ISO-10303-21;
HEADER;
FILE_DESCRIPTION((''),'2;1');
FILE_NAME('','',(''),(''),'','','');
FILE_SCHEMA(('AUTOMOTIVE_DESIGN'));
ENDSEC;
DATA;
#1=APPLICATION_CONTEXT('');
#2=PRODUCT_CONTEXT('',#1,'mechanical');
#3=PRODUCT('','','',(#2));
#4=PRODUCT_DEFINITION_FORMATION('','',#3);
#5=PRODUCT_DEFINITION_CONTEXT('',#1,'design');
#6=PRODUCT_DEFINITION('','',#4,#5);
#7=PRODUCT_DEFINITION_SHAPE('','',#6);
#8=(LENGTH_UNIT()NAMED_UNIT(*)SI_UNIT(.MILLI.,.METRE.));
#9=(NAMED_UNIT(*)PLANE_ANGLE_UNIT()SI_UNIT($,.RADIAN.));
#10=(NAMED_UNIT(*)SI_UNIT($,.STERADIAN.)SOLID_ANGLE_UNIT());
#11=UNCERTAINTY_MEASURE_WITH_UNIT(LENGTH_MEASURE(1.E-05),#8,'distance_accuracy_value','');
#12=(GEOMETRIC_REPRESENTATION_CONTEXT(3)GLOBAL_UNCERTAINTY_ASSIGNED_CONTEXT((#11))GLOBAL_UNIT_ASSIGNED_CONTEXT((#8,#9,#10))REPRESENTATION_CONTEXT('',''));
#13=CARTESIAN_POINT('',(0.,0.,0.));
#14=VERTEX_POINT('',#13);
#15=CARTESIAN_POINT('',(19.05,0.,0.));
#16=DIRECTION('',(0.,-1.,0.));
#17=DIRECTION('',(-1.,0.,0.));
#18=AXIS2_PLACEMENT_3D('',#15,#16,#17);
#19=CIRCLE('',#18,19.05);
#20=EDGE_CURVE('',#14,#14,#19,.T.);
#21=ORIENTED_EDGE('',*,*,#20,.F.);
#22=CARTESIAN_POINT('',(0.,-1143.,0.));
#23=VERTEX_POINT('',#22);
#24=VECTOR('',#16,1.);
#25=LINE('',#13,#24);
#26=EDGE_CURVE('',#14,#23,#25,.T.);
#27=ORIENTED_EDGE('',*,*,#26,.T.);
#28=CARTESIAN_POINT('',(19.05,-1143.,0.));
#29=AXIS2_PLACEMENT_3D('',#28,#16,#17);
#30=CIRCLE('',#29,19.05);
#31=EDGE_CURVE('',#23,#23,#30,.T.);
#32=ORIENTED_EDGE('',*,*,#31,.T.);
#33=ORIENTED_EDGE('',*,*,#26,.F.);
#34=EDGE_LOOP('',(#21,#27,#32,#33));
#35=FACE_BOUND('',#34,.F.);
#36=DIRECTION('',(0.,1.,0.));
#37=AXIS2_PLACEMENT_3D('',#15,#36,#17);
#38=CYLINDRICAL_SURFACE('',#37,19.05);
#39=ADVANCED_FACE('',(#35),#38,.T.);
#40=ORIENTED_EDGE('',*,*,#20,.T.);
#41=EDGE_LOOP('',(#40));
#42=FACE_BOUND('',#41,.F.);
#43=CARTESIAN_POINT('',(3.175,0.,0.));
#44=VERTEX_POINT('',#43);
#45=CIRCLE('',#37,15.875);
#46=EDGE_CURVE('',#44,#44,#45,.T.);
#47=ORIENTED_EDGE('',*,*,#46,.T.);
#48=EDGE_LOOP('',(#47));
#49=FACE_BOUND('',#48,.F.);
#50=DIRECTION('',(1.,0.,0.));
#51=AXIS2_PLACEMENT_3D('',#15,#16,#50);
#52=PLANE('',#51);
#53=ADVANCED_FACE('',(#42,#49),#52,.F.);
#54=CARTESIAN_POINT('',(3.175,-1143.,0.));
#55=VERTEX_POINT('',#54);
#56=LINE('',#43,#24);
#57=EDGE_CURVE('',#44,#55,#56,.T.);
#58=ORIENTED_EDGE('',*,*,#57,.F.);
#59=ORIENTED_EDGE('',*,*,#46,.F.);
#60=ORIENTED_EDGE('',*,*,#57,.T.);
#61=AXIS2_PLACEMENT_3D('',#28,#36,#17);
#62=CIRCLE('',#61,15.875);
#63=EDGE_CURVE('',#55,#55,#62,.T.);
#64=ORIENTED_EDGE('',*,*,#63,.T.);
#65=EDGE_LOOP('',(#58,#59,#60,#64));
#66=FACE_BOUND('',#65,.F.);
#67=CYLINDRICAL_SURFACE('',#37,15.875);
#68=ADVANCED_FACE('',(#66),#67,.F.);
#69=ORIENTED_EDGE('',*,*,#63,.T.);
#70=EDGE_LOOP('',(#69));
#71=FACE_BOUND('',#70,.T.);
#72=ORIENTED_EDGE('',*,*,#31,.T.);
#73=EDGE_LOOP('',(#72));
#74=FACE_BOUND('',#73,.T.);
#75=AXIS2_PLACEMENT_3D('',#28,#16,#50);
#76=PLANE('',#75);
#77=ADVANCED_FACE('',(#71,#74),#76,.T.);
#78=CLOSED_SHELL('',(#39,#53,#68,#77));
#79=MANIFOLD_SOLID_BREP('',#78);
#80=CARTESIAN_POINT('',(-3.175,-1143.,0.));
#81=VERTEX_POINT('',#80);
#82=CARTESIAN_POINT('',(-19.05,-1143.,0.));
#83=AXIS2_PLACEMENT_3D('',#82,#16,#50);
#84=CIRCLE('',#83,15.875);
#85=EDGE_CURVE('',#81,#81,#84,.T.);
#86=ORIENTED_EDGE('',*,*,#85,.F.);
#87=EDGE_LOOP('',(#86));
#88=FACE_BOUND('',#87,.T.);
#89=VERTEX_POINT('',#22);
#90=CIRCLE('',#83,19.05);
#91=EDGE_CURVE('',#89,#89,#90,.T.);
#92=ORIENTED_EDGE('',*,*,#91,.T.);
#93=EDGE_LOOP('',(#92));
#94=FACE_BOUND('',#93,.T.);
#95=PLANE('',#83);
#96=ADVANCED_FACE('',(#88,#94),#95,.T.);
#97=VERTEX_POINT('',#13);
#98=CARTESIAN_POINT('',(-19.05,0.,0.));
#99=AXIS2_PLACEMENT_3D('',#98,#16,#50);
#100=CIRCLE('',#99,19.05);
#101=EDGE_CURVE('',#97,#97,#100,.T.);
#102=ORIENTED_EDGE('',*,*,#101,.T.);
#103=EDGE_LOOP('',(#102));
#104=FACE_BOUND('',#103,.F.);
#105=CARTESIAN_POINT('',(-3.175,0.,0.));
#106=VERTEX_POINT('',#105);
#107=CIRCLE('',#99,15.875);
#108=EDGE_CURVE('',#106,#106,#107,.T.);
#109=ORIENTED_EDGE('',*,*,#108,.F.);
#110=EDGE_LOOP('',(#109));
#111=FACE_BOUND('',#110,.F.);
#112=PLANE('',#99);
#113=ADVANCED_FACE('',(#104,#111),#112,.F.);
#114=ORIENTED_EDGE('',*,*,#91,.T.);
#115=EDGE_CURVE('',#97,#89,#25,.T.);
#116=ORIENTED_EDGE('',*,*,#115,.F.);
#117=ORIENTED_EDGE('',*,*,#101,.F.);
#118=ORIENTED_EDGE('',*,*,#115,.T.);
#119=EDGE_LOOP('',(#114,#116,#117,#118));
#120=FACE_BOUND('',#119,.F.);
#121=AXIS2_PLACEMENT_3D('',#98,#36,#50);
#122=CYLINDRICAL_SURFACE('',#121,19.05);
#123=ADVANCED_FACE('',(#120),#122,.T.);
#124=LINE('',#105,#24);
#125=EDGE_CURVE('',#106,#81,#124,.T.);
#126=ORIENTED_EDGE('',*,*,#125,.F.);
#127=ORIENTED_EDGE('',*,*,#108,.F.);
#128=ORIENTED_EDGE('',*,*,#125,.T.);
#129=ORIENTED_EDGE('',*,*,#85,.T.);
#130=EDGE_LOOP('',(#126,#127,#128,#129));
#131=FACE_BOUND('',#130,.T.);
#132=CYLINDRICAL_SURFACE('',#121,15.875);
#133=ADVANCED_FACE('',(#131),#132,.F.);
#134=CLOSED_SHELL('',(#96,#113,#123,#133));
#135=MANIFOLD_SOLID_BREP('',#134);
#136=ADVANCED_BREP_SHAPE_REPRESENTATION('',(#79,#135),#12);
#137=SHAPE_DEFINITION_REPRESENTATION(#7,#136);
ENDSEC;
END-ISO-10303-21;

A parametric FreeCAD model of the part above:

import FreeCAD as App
import Part
import Sketcher
from FreeCAD import Vector
Q = App.Units.Quantity

doc = App.newDocument("Part")
body = doc.addObject("PartDesign::Body", "Body")
body.AllowCompound = True

# Sketch on XZ plane
sketch1 = doc.addObject("Sketcher::SketchObject", "Sketch")
body.addObject(sketch1)
sketch1.AttachmentSupport = (doc.XZ_Plane, [""])
sketch1.MapMode = "FlatFace"
sketch1.addGeometry([
    Part.Circle(Vector(19, 0, 0), Vector(0, 0, 1), 19),
    Part.Circle(Vector(19, 0, 0), Vector(0, 0, 1), 16),
    Part.Circle(Vector(-19, 0, 0), Vector(0, 0, 1), 19),
    Part.Circle(Vector(-19, 0, 0), Vector(0, 0, 1), 16),
], False)
sketch1.addConstraint([
    Sketcher.Constraint("Coincident", 1, 3, 0, 3),
    Sketcher.Constraint("Coincident", 3, 3, 2, 3),
    Sketcher.Constraint("Equal", 0, 2),
    Sketcher.Constraint("Equal", 1, 3),
    Sketcher.Constraint("Symmetric", 0, 3, 2, 3, -1, 1),
    Sketcher.Constraint("PointOnObject", 0, 3, -1),
    Sketcher.Constraint("Diameter", 0, Q("1.5 in")),
    Sketcher.Constraint("Diameter", 1, Q("1.25 in")),
    Sketcher.Constraint("DistanceX", 2, 3, 0, 3, Q("1.5 in")),
])
pad1 = doc.addObject("PartDesign::Pad", "Pad")
body.addObject(pad1)
pad1.Profile = sketch1
pad1.Length = Q("45 in")

doc.recompute()
